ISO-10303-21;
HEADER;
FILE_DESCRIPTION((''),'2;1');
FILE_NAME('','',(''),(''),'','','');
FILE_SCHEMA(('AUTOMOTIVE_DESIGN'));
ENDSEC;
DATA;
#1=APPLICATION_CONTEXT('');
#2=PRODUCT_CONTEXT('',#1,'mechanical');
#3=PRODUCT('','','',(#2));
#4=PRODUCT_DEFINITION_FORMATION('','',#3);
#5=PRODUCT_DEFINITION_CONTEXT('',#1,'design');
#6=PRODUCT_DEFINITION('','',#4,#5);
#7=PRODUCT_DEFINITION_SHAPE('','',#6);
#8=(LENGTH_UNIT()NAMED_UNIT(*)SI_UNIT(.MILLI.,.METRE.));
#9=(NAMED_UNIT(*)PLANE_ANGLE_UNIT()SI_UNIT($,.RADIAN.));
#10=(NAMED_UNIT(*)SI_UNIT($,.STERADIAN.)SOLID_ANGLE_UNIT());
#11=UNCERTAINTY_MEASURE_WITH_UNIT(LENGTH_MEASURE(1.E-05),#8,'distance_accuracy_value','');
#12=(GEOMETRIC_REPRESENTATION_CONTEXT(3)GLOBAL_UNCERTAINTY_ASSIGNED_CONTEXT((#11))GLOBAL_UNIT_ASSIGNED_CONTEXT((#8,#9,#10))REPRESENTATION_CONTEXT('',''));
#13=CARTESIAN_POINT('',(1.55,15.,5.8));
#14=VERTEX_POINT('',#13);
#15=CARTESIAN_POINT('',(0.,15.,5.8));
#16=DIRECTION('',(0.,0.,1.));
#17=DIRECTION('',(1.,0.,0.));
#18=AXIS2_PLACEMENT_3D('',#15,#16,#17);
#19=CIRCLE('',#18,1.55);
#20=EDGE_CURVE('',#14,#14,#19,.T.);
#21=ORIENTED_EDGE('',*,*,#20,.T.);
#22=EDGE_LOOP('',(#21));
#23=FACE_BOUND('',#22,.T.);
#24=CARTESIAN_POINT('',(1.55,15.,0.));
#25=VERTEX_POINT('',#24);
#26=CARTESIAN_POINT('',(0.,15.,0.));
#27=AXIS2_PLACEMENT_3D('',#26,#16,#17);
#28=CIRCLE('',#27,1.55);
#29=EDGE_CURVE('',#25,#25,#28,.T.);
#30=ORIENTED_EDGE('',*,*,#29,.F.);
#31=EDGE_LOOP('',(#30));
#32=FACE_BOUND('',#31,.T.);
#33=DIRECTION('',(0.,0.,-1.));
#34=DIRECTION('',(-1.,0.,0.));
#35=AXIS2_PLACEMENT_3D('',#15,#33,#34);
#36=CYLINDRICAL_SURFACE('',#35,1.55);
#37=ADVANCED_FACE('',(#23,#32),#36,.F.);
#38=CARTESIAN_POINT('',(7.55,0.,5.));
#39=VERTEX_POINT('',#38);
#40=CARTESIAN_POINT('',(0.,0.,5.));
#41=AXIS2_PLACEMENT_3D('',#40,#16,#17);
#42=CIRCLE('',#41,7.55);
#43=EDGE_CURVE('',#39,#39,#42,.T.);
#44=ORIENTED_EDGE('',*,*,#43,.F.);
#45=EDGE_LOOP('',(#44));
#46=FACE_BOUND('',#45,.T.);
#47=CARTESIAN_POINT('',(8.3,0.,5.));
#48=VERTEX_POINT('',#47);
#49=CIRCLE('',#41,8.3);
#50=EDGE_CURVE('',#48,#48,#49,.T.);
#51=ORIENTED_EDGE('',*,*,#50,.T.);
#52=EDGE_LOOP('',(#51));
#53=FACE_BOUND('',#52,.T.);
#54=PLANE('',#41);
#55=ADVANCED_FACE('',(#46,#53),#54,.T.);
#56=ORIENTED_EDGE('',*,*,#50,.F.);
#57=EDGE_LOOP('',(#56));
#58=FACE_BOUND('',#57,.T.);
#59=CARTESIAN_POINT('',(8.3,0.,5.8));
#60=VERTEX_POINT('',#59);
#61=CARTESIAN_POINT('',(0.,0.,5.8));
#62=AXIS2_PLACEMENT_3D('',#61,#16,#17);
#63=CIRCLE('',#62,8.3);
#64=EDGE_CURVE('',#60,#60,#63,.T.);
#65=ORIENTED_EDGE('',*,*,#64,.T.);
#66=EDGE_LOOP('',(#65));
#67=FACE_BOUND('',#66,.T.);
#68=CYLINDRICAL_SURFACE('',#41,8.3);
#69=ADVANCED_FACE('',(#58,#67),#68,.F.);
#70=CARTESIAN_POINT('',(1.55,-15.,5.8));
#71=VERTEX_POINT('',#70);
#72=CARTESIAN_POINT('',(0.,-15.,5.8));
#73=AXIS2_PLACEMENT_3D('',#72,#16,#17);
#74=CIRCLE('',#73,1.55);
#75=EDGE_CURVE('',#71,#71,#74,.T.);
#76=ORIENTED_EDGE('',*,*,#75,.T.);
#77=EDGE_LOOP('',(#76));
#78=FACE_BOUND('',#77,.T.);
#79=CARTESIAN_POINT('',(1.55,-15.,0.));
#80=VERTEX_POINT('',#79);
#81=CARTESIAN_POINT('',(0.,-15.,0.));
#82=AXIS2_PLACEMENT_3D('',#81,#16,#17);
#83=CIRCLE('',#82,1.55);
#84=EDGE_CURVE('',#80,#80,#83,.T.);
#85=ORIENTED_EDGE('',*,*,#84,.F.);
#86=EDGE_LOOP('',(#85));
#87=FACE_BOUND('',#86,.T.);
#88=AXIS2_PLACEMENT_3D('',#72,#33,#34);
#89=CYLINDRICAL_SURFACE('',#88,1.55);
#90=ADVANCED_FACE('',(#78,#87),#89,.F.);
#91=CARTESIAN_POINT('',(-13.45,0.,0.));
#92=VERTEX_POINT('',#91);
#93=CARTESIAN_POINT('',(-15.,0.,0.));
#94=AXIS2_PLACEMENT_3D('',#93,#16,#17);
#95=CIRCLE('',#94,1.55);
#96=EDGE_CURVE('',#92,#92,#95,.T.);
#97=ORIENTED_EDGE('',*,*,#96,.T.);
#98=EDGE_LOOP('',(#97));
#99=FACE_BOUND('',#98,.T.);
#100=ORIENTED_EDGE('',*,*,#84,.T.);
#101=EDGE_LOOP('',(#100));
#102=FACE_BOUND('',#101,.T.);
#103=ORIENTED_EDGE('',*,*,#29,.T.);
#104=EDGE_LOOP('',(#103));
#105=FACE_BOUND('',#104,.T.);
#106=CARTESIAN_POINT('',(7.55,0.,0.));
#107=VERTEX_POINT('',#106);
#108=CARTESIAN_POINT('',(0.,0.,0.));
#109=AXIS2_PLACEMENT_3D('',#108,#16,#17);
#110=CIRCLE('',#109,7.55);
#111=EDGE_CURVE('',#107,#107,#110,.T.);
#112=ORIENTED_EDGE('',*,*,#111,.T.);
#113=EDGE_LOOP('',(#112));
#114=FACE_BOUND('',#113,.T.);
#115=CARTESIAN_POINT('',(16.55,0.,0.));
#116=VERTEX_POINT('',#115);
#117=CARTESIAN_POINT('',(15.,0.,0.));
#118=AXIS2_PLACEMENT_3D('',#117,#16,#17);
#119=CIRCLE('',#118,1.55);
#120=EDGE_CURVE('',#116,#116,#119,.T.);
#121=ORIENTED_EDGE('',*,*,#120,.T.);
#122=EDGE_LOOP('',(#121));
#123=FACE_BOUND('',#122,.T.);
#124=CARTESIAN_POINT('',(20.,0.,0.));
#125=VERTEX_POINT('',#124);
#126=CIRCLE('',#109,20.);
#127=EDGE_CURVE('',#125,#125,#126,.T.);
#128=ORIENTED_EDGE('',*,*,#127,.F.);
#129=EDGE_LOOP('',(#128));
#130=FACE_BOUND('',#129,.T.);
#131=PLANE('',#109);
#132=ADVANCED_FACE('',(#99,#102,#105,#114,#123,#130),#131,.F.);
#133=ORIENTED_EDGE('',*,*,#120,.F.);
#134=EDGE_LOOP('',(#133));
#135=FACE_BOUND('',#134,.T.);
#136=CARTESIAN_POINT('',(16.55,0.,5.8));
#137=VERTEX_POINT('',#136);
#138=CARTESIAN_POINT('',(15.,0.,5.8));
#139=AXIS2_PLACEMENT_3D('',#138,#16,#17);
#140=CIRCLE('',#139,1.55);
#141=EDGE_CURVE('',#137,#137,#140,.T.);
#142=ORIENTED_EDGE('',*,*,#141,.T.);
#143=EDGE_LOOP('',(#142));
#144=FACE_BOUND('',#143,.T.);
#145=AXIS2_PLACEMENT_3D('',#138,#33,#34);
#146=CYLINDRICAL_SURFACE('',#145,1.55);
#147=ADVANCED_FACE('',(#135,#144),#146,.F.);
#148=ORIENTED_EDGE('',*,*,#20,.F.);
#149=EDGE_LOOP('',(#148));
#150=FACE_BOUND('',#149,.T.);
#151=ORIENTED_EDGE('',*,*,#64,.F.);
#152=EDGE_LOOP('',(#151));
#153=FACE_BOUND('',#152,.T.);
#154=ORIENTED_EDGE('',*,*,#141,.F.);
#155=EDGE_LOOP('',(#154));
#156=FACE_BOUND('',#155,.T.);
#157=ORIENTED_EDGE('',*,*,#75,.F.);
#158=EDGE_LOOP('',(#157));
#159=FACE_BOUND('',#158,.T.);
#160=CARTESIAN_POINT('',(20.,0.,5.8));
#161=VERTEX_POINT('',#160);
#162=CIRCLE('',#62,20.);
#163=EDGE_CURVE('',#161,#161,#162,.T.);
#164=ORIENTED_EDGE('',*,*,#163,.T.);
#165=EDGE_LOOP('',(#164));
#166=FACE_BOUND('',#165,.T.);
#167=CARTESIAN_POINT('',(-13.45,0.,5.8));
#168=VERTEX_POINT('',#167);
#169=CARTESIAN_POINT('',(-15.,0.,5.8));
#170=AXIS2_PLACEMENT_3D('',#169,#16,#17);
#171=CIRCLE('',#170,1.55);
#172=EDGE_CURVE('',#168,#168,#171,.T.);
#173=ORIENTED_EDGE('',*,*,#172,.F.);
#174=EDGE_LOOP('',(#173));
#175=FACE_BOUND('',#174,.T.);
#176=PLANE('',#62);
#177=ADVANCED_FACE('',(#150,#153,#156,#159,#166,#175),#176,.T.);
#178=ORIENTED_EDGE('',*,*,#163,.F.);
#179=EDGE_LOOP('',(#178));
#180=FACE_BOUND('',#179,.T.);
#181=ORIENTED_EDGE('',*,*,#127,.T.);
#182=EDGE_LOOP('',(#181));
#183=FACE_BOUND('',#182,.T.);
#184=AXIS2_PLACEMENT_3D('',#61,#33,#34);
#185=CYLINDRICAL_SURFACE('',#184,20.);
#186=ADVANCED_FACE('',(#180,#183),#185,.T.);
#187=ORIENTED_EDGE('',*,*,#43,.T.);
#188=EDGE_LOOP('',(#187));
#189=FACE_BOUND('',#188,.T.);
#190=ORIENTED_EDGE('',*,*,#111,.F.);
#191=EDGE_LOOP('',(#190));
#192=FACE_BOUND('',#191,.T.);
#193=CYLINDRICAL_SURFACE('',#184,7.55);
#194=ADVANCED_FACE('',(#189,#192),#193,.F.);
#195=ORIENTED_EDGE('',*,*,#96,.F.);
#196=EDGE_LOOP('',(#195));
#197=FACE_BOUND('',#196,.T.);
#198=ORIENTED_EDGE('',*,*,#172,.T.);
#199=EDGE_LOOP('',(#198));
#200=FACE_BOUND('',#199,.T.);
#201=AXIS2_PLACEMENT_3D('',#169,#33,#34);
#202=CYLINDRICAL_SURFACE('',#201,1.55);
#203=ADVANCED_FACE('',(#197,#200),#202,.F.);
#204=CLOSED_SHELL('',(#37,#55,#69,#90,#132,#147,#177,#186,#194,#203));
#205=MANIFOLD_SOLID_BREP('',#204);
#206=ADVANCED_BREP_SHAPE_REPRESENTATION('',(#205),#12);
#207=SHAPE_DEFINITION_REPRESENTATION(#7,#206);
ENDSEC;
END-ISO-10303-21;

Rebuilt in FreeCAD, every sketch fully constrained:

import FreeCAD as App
import Part
import Sketcher

V = App.Vector

doc = App.newDocument("Part")
body = doc.addObject("PartDesign::Body", "Body")

# Sketch on XY plane
sketch1 = body.newObject("Sketcher::SketchObject", "Sketch")
sketch1.AttachmentSupport = (doc.getObject("XY_Plane"), [""])
sketch1.MapMode = "FlatFace"
sketch1.addGeometry([
    Part.Circle(V(0, 0, 0), V(0, 0, 1), 20),  # 0
    Part.Circle(V(0, -15, 0), V(0, 0, 1), 1.6),  # 1
    Part.Circle(V(-15, 0, 0), V(0, 0, 1), 1.6),  # 2
    Part.Circle(V(0, 0, 0), V(0, 0, 1), 7.5),  # 3
    Part.Circle(V(0, 15, 0), V(0, 0, 1), 1.6),  # 4
    Part.Circle(V(15, 0, 0), V(0, 0, 1), 1.6),  # 5
], False)
sketch1.addConstraint([
    Sketcher.Constraint("Coincident", 0, 3, -1, 1),
    Sketcher.Constraint("Coincident", 3, 3, -1, 1),
    Sketcher.Constraint("Equal", 1, 2),
    Sketcher.Constraint("Equal", 2, 4),
    Sketcher.Constraint("Equal", 4, 5),
    Sketcher.Constraint("Symmetric", 1, 3, 4, 3, -1, 1),
    Sketcher.Constraint("Symmetric", 2, 3, 5, 3, -1, 1),
    Sketcher.Constraint("PointOnObject", 1, 3, -2),
    Sketcher.Constraint("PointOnObject", 2, 3, -1),
    Sketcher.Constraint("Diameter", 0, 40.0),
    Sketcher.Constraint("Diameter", 1, 3.1),
    Sketcher.Constraint("Diameter", 3, 15.1),
    Sketcher.Constraint("DistanceY", 1, 3, -1, 1, 15.0),
    Sketcher.Constraint("DistanceX", 2, 3, -1, 1, 15.0),
])
pad1 = body.newObject("PartDesign::Pad", "Pad")
pad1.Profile = sketch1
pad1.Length = 5.8

# Sketch on XY plane
sketch2 = body.newObject("Sketcher::SketchObject", "Sketch001")
sketch2.AttachmentSupport = (doc.getObject("XY_Plane"), [""])
sketch2.MapMode = "FlatFace"
sketch2.AttachmentOffset = App.Placement(V(0, 0, 5.8), App.Rotation())
sketch2.addGeometry(Part.Circle(V(0, 0, 0), V(0, 0, 1), 8), False)
sketch2.addConstraint([
    Sketcher.Constraint("Coincident", 0, 3, -1, 1),
    Sketcher.Constraint("Diameter", 0, 16.6),
])
pocket1 = body.newObject("PartDesign::Pocket", "Pocket")
pocket1.Profile = sketch2
pocket1.Length = 0.8

doc.recompute()
